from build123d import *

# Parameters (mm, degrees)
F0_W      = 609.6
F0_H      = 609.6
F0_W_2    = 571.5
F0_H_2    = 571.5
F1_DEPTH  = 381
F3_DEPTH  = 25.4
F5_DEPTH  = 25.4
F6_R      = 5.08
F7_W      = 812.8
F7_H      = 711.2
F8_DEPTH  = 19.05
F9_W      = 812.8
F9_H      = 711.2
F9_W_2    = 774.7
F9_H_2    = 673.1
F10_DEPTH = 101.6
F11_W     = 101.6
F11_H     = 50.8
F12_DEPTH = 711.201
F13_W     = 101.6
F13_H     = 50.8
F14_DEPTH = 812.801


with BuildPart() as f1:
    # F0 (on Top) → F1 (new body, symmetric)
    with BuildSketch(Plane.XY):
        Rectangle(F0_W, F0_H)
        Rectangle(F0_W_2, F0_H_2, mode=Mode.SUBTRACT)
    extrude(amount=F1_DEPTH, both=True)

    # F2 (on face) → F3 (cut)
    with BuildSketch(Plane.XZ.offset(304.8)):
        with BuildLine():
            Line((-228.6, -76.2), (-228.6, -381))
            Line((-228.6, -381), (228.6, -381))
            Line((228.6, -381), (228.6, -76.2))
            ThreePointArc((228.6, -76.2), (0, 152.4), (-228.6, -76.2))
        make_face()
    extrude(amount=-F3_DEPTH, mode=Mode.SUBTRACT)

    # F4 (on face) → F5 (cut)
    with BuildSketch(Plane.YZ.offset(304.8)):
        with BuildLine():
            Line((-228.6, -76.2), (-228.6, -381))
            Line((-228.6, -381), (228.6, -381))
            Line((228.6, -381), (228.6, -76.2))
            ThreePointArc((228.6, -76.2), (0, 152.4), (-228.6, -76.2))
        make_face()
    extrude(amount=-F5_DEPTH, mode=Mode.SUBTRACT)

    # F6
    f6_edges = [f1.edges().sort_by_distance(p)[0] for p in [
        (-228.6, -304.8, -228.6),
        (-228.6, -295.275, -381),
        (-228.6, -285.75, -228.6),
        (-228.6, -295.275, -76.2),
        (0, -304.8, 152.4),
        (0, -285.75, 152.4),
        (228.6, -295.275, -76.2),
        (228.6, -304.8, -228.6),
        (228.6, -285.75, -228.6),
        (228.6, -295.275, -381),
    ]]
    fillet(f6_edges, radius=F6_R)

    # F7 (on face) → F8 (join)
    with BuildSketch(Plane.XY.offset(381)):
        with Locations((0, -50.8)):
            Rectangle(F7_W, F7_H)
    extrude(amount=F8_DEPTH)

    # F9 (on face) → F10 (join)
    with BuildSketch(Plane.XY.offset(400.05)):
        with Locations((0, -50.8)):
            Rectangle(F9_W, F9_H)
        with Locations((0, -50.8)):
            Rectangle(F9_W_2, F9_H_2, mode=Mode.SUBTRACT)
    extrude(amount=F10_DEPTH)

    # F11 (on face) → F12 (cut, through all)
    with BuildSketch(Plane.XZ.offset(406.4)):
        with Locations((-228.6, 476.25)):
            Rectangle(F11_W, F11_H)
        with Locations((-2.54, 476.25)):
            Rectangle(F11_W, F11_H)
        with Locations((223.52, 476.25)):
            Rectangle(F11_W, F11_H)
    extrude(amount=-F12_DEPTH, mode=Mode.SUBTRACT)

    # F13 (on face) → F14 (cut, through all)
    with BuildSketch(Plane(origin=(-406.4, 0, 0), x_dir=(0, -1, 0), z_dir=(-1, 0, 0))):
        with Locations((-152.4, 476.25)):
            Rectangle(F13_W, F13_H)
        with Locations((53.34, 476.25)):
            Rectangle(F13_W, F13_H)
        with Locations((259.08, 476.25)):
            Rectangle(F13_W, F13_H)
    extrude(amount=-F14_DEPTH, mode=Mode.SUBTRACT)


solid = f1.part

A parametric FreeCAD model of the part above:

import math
import FreeCAD as App
import Part
import Sketcher
from FreeCAD import Vector
Q = App.Units.Quantity


def edges_at(feature, points):
    """Names of the edges that pass closest to the given points."""
    edges = feature.Shape.Edges
    near = lambda p: min(range(len(edges)), key=lambda i: edges[i].distToShape(Part.Vertex(*p))[0])
    return sorted({f"Edge{near(p) + 1}" for p in points})


def add_polygon(sketch, points):
    """Adds a closed chain of lines whose ends are joined by coincident constraints."""
    first, n = sketch.GeometryCount, len(points)
    for a, b in zip(points, points[1:] + points[:1]):
        sketch.addGeometry(Part.LineSegment(App.Vector(*a, 0), App.Vector(*b, 0)), False)
    for i in range(n):
        sketch.addConstraint(Sketcher.Constraint("Coincident", first + i, 2, first + (i + 1) % n, 1))

doc = App.newDocument("Part")
body = doc.addObject("PartDesign::Body", "Body")

sketch1 = body.newObject("Sketcher::SketchObject", "Sketch")
sketch1.AttachmentSupport = (doc.getObject("XY_Plane"), [""])
sketch1.MapMode = "FlatFace"
add_polygon(sketch1, [(-305, 305), (-305, -305), (305, -305), (305, 305)])
add_polygon(sketch1, [(286, -286), (-286, -286), (-286, 286), (286, 286)])
sketch1.addConstraint([
    Sketcher.Constraint("Vertical", 0),
    Sketcher.Constraint("Horizontal", 1),
    Sketcher.Constraint("Vertical", 2),
    Sketcher.Constraint("Horizontal", 3),
    Sketcher.Constraint("Horizontal", 4),
    Sketcher.Constraint("Vertical", 5),
    Sketcher.Constraint("Horizontal", 6),
    Sketcher.Constraint("Vertical", 7),
    Sketcher.Constraint("Symmetric", 0, 2, 2, 2, -1, 1),
    Sketcher.Constraint("Symmetric", 4, 2, 6, 2, -1, 1),
    Sketcher.Constraint("Equal", 3, 0),
    Sketcher.Constraint("Equal", 6, 5),
    Sketcher.Constraint("DistanceX", 1, 1, 1, 2, Q("24 in")),
    Sketcher.Constraint("DistanceX", 4, 2, 4, 1, Q("22.5 in")),
])
pad1 = body.newObject("PartDesign::Pad", "Pad")
pad1.Profile = sketch1
pad1.Length = Q("30 in")
pad1.Midplane = True

sketch2 = body.newObject("Sketcher::SketchObject", "Sketch001")
sketch2.AttachmentSupport = (doc.getObject("XZ_Plane"), [""])
sketch2.MapMode = "FlatFace"
sketch2.AttachmentOffset = App.Placement(Vector(0, 0, 12 * 25.4), App.Rotation())
sketch2.addGeometry([
    Part.LineSegment(Vector(-229, -76, 0), Vector(-229, -381, 0)),
    Part.LineSegment(Vector(-229, -381, 0), Vector(229, -381, 0)),
    Part.LineSegment(Vector(229, -381, 0), Vector(229, -76, 0)),
    Part.ArcOfCircle(Part.Circle(Vector(0, -76, 0), Vector(0, 0, 1), 229), math.radians(0), math.radians(180)),
], False)
sketch2.addConstraint([
    Sketcher.Constraint("Coincident", 0, 2, 1, 1),
    Sketcher.Constraint("Coincident", 1, 2, 2, 1),
    Sketcher.Constraint("Tangent", 2, 2, 3, 1),
    Sketcher.Constraint("Tangent", 3, 2, 0, 1),
    Sketcher.Constraint("Vertical", 0),
    Sketcher.Constraint("Horizontal", 1),
    Sketcher.Constraint("Vertical", 2),
    Sketcher.Constraint("PointOnObject", 3, 3, -2),
    Sketcher.Constraint("Radius", 3, Q("9 in")),
    Sketcher.Constraint("DistanceY", 0, 2, 0, 1, Q("12 in")),
    Sketcher.Constraint("DistanceY", 3, 3, -1, 1, Q("3 in")),
])
pocket1 = body.newObject("PartDesign::Pocket", "Pocket")
pocket1.Profile = sketch2
pocket1.Length = Q("1 in")

sketch3 = body.newObject("Sketcher::SketchObject", "Sketch002")
sketch3.AttachmentSupport = (doc.getObject("YZ_Plane"), [""])
sketch3.MapMode = "FlatFace"
sketch3.AttachmentOffset = App.Placement(Vector(0, 0, 12 * 25.4), App.Rotation())
sketch3.addGeometry([
    Part.LineSegment(Vector(-229, -76, 0), Vector(-229, -381, 0)),
    Part.LineSegment(Vector(-229, -381, 0), Vector(229, -381, 0)),
    Part.LineSegment(Vector(229, -381, 0), Vector(229, -76, 0)),
    Part.ArcOfCircle(Part.Circle(Vector(0, -76, 0), Vector(0, 0, 1), 229), math.radians(0), math.radians(180)),
], False)
sketch3.addConstraint([
    Sketcher.Constraint("Coincident", 0, 2, 1, 1),
    Sketcher.Constraint("Coincident", 1, 2, 2, 1),
    Sketcher.Constraint("Tangent", 2, 2, 3, 1),
    Sketcher.Constraint("Tangent", 3, 2, 0, 1),
    Sketcher.Constraint("Vertical", 0),
    Sketcher.Constraint("Horizontal", 1),
    Sketcher.Constraint("Vertical", 2),
    Sketcher.Constraint("PointOnObject", 3, 3, -2),
    Sketcher.Constraint("Radius", 3, Q("9 in")),
    Sketcher.Constraint("DistanceY", 0, 2, 0, 1, Q("12 in")),
    Sketcher.Constraint("DistanceY", 3, 3, -1, 1, Q("3 in")),
])
pocket2 = body.newObject("PartDesign::Pocket", "Pocket001")
pocket2.Profile = sketch3
pocket2.Length = Q("1 in")
doc.recompute()

fillet = body.newObject("PartDesign::Fillet", "Fillet")
fillet.Base = (pocket2, edges_at(pocket2, [
    (-228.6, -304.8, -228.6),
    (-228.6, -295.275, -381),
    (-228.6, -285.75, -228.6),
    (-228.6, -295.275, -76.2),
    (0, -304.8, 152.4),
    (0, -285.75, 152.4),
    (228.6, -295.275, -76.2),
    (228.6, -304.8, -228.6),
    (228.6, -285.75, -228.6),
    (228.6, -295.275, -381),
]))
fillet.Radius = Q("0.2 in")

sketch4 = body.newObject("Sketcher::SketchObject", "Sketch003")
sketch4.AttachmentSupport = (doc.getObject("XY_Plane"), [""])
sketch4.MapMode = "FlatFace"
sketch4.AttachmentOffset = App.Placement(Vector(0, 0, 15 * 25.4), App.Rotation())
add_polygon(sketch4, [(-406, 305), (-406, -406), (406, -406), (406, 305)])
sketch4.addConstraint([
    Sketcher.Constraint("Vertical", 0),
    Sketcher.Constraint("Horizontal", 1),
    Sketcher.Constraint("Vertical", 2),
    Sketcher.Constraint("Horizontal", 3),
    Sketcher.Constraint("DistanceX", 1, 1, 1, 2, Q("32 in")),
    Sketcher.Constraint("DistanceY", 0, 2, 0, 1, Q("28 in")),
    Sketcher.Constraint("DistanceX", 0, 2, -1, 1, Q("16 in")),
    Sketcher.Constraint("DistanceY", 0, 2, -1, 1, Q("16 in")),
])
pad2 = body.newObject("PartDesign::Pad", "Pad001")
pad2.Profile = sketch4
pad2.Length = Q("0.75 in")

sketch5 = body.newObject("Sketcher::SketchObject", "Sketch004")
sketch5.AttachmentSupport = (doc.getObject("XY_Plane"), [""])
sketch5.MapMode = "FlatFace"
sketch5.AttachmentOffset = App.Placement(Vector(0, 0, 15.75 * 25.4), App.Rotation())
add_polygon(sketch5, [(-406, 305), (-406, -406), (406, -406), (406, 305)])
add_polygon(sketch5, [(387, -387), (-387, -387), (-387, 286), (387, 286)])
sketch5.addConstraint([
    Sketcher.Constraint("Vertical", 0),
    Sketcher.Constraint("Horizontal", 1),
    Sketcher.Constraint("Vertical", 2),
    Sketcher.Constraint("Horizontal", 3),
    Sketcher.Constraint("Horizontal", 4),
    Sketcher.Constraint("Vertical", 5),
    Sketcher.Constraint("Horizontal", 6),
    Sketcher.Constraint("Vertical", 7),
    Sketcher.Constraint("DistanceX", 1, 1, 1, 2, Q("32 in")),
    Sketcher.Constraint("DistanceY", 0, 2, 0, 1, Q("28 in")),
    Sketcher.Constraint("DistanceX", 4, 2, 4, 1, Q("30.5 in")),
    Sketcher.Constraint("DistanceY", 5, 1, 5, 2, Q("26.5 in")),
    Sketcher.Constraint("DistanceX", 0, 2, -1, 1, Q("16 in")),
    Sketcher.Constraint("DistanceY", 0, 2, -1, 1, Q("16 in")),
    Sketcher.Constraint("DistanceX", 4, 2, -1, 1, Q("15.25 in")),
    Sketcher.Constraint("DistanceY", 4, 2, -1, 1, Q("15.25 in")),
])
pad3 = body.newObject("PartDesign::Pad", "Pad002")
pad3.Profile = sketch5
pad3.Length = Q("4 in")

sketch6 = body.newObject("Sketcher::SketchObject", "Sketch005")
sketch6.AttachmentSupport = (doc.getObject("XZ_Plane"), [""])
sketch6.MapMode = "FlatFace"
sketch6.AttachmentOffset = App.Placement(Vector(0, 0, 16 * 25.4), App.Rotation())
add_polygon(sketch6, [(-279, 502), (-279, 451), (-178, 451), (-178, 502)])
add_polygon(sketch6, [(-53, 502), (-53, 451), (48, 451), (48, 502)])
add_polygon(sketch6, [(173, 502), (173, 451), (274, 451), (274, 502)])
sketch6.addConstraint([
    Sketcher.Constraint("Vertical", 0),
    Sketcher.Constraint("Horizontal", 1),
    Sketcher.Constraint("Vertical", 2),
    Sketcher.Constraint("Horizontal", 3),
    Sketcher.Constraint("Vertical", 4),
    Sketcher.Constraint("Horizontal", 5),
    Sketcher.Constraint("Vertical", 6),
    Sketcher.Constraint("Horizontal", 7),
    Sketcher.Constraint("Vertical", 8),
    Sketcher.Constraint("Horizontal", 9),
    Sketcher.Constraint("Vertical", 10),
    Sketcher.Constraint("Horizontal", 11),
    Sketcher.Constraint("Horizontal", 1, 2, 4, 2),
    Sketcher.Constraint("Horizontal", 3, 2, 6, 2),
    Sketcher.Constraint("Horizontal", 5, 2, 8, 2),
    Sketcher.Constraint("Horizontal", 7, 2, 10, 2),
    Sketcher.Constraint("Equal", 3, 5),
    Sketcher.Constraint("Equal", 7, 9),
    Sketcher.Constraint("DistanceX", 1, 1, 1, 2, Q("4 in")),
    Sketcher.Constraint("DistanceY", 0, 2, 0, 1, Q("2 in")),
    Sketcher.Constraint("DistanceX", 0, 2, -1, 1, Q("11 in")),
    Sketcher.Constraint("DistanceX", 4, 2, -1, 1, Q("2.1 in")),
    Sketcher.Constraint("DistanceX", -1, 1, 8, 2, Q("6.8 in")),
    Sketcher.Constraint("DistanceY", -1, 1, 0, 2, Q("17.75 in")),
])
pocket3 = body.newObject("PartDesign::Pocket", "Pocket002")
pocket3.Profile = sketch6
pocket3.Type = "ThroughAll"

sketch7 = body.newObject("Sketcher::SketchObject", "Sketch006")
sketch7.AttachmentSupport = (doc.getObject("YZ_Plane"), [""])
sketch7.MapMode = "FlatFace"
sketch7.AttachmentOffset = App.Placement(Vector(0, 0, -16 * 25.4), App.Rotation())
add_polygon(sketch7, [(203, 502), (203, 451), (102, 451), (102, 502)])
add_polygon(sketch7, [(-3, 502), (-3, 451), (-104, 451), (-104, 502)])
add_polygon(sketch7, [(-208, 502), (-208, 451), (-310, 451), (-310, 502)])
sketch7.addConstraint([
    Sketcher.Constraint("Vertical", 0),
    Sketcher.Constraint("Horizontal", 1),
    Sketcher.Constraint("Vertical", 2),
    Sketcher.Constraint("Horizontal", 3),
    Sketcher.Constraint("Vertical", 4),
    Sketcher.Constraint("Horizontal", 5),
    Sketcher.Constraint("Vertical", 6),
    Sketcher.Constraint("Horizontal", 7),
    Sketcher.Constraint("Vertical", 8),
    Sketcher.Constraint("Horizontal", 9),
    Sketcher.Constraint("Vertical", 10),
    Sketcher.Constraint("Horizontal", 11),
    Sketcher.Constraint("Horizontal", 1, 2, 4, 2),
    Sketcher.Constraint("Horizontal", 3, 2, 6, 2),
    Sketcher.Constraint("Horizontal", 5, 2, 8, 2),
    Sketcher.Constraint("Horizontal", 7, 2, 10, 2),
    Sketcher.Constraint("Equal", 3, 5),
    Sketcher.Constraint("Equal", 7, 9),
    Sketcher.Constraint("DistanceX", 1, 2, 1, 1, Q("4 in")),
    Sketcher.Constraint("DistanceY", 0, 2, 0, 1, Q("2 in")),
    Sketcher.Constraint("DistanceX", -1, 1, 0, 2, Q("8 in")),
    Sketcher.Constraint("DistanceX", 4, 2, -1, 1, Q("0.1 in")),
    Sketcher.Constraint("DistanceX", 8, 2, -1, 1, Q("8.2 in")),
    Sketcher.Constraint("DistanceY", -1, 1, 0, 2, Q("17.75 in")),
])
pocket4 = body.newObject("PartDesign::Pocket", "Pocket003")
pocket4.Profile = sketch7
pocket4.Type = "ThroughAll"
pocket4.Reversed = True

doc.recompute()
